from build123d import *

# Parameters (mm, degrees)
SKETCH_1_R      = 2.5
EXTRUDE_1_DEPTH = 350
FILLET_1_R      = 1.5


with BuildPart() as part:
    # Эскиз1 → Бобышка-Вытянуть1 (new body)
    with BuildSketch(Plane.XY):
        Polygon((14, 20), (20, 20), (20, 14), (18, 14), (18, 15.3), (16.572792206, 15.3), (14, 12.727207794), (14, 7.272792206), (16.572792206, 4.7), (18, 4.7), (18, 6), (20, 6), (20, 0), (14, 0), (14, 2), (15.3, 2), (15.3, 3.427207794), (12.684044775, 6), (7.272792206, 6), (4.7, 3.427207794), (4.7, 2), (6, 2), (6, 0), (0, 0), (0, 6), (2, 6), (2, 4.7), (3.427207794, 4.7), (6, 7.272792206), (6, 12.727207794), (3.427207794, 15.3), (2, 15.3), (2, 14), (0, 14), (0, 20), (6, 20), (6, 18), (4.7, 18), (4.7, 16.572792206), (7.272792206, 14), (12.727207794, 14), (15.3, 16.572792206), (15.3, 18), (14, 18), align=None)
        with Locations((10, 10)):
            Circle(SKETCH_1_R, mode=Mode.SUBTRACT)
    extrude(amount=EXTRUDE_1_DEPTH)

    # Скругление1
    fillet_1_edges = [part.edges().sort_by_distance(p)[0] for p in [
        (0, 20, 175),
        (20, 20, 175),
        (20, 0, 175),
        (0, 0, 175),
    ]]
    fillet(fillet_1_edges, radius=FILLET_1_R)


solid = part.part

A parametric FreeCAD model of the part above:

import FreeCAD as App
import Part
import Sketcher
Q = App.Units.Quantity


def edges_at(feature, points):
    """Names of the edges that pass closest to the given points."""
    edges = feature.Shape.Edges
    near = lambda p: min(range(len(edges)), key=lambda i: edges[i].distToShape(Part.Vertex(*p))[0])
    return sorted({f"Edge{near(p) + 1}" for p in points})


def add_polygon(sketch, points):
    """Adds a closed chain of lines whose ends are joined by coincident constraints."""
    first, n = sketch.GeometryCount, len(points)
    for a, b in zip(points, points[1:] + points[:1]):
        sketch.addGeometry(Part.LineSegment(App.Vector(*a, 0), App.Vector(*b, 0)), False)
    for i in range(n):
        sketch.addConstraint(Sketcher.Constraint("Coincident", first + i, 2, first + (i + 1) % n, 1))

doc = App.newDocument("Part")
body = doc.addObject("PartDesign::Body", "Body")

sketch1 = body.newObject("Sketcher::SketchObject", "Sketch")
sketch1.AttachmentSupport = (doc.getObject("XY_Plane"), [""])
sketch1.MapMode = "FlatFace"
add_polygon(sketch1, [(20, 20), (14, 20), (14, 18), (15.3, 18), (15.3, 16.572792), (12.727208, 14), (7.272792, 14), (4.7, 16.572792), (4.7, 18), (6, 18), (6, 20), (0, 20), (0, 14), (2, 14), (2, 15.3), (3.427208, 15.3), (6, 12.727208), (6, 7.272792), (3.427208, 4.7), (2, 4.7), (2, 6), (0, 6), (0, 0), (6, 0), (6, 2), (4.7, 2), (4.7, 3.427208), (7.272792, 6), (12.684045, 6), (15.3, 3.427208), (15.3, 2), (14, 2), (14, 0), (20, 0), (20, 6), (18, 6), (18, 4.7), (16.572792, 4.7), (14, 7.272792), (14, 12.727208), (16.572792, 15.3), (18, 15.3), (18, 14), (20, 14)])
sketch1.addGeometry(Part.Circle(App.Vector(10, 10, 0), App.Vector(0, 0, 1), 2.5), False)
sketch1.addConstraint([
    Sketcher.Constraint("Horizontal", 0),
    Sketcher.Constraint("Vertical", 1),
    Sketcher.Constraint("Horizontal", 2),
    Sketcher.Constraint("Vertical", 3),
    Sketcher.Constraint("Horizontal", 5),
    Sketcher.Constraint("Vertical", 7),
    Sketcher.Constraint("Horizontal", 8),
    Sketcher.Constraint("Vertical", 9),
    Sketcher.Constraint("Horizontal", 10),
    Sketcher.Constraint("Vertical", 11),
    Sketcher.Constraint("Horizontal", 12),
    Sketcher.Constraint("Vertical", 13),
    Sketcher.Constraint("Horizontal", 14),
    Sketcher.Constraint("Vertical", 16),
    Sketcher.Constraint("Horizontal", 18),
    Sketcher.Constraint("Vertical", 19),
    Sketcher.Constraint("Horizontal", 20),
    Sketcher.Constraint("Vertical", 21),
    Sketcher.Constraint("Horizontal", 22),
    Sketcher.Constraint("Vertical", 23),
    Sketcher.Constraint("Horizontal", 24),
    Sketcher.Constraint("Vertical", 25),
    Sketcher.Constraint("Horizontal", 27),
    Sketcher.Constraint("Vertical", 29),
    Sketcher.Constraint("Horizontal", 30),
    Sketcher.Constraint("Vertical", 31),
    Sketcher.Constraint("Horizontal", 32),
    Sketcher.Constraint("Vertical", 33),
    Sketcher.Constraint("Horizontal", 34),
    Sketcher.Constraint("Vertical", 35),
    Sketcher.Constraint("Horizontal", 36),
    Sketcher.Constraint("Vertical", 38),
    Sketcher.Constraint("Horizontal", 40),
    Sketcher.Constraint("Vertical", 41),
    Sketcher.Constraint("Horizontal", 42),
    Sketcher.Constraint("Vertical", 43),
    Sketcher.Constraint("Coincident", 21, 2, -1, 1),
    Sketcher.Constraint("PointOnObject", 10, 2, -2),
    Sketcher.Constraint("PointOnObject", 31, 2, -1),
    Sketcher.Constraint("Perpendicular", 4, 6),
    Sketcher.Constraint("Parallel", 6, 15),
    Sketcher.Constraint("Perpendicular", 15, 17),
    Sketcher.Constraint("Parallel", 17, 26),
    Sketcher.Constraint("Perpendicular", 26, 37),
    Sketcher.Constraint("Perpendicular", 37, 39),
    Sketcher.Constraint("Horizontal", 3, 2, 6, 2),
    Sketcher.Constraint("Horizontal", 2, 2, 7, 2),
    Sketcher.Constraint("Horizontal", 0, 2, 9, 2),
    Sketcher.Constraint("Horizontal", 5, 2, 11, 2),
    Sketcher.Constraint("Horizontal", 20, 2, 26, 2),
    Sketcher.Constraint("Horizontal", 25, 2, 28, 2),
    Sketcher.Constraint("Horizontal", 24, 2, 29, 2),
    Sketcher.Constraint("Horizontal", 27, 2, 33, 2),
    Sketcher.Constraint("Horizontal", 18, 2, 35, 2),
    Sketcher.Constraint("Horizontal", 16, 2, 37, 2),
    Sketcher.Constraint("Horizontal", 15, 2, 38, 2),
    Sketcher.Constraint("Horizontal", 14, 2, 39, 2),
    Sketcher.Constraint("Horizontal", 12, 2, 41, 2),
    Sketcher.Constraint("Vertical", 9, 2, 15, 2),
    Sketcher.Constraint("Vertical", 14, 2, 17, 2),
    Sketcher.Constraint("Vertical", 13, 2, 18, 2),
    Sketcher.Constraint("Vertical", 16, 2, 22, 2),
    Sketcher.Constraint("Vertical", 7, 2, 24, 2),
    Sketcher.Constraint("Vertical", 5, 2, 26, 2),
    Sketcher.Constraint("Vertical", 3, 2, 28, 2),
    Sketcher.Constraint("Vertical", 1, 2, 30, 2),
    Sketcher.Constraint("Vertical", 31, 2, 37, 2),
    Sketcher.Constraint("Vertical", 36, 2, 39, 2),
    Sketcher.Constraint("Vertical", 35, 2, 40, 2),
    Sketcher.Constraint("Vertical", 33, 2, 42, 2),
    Sketcher.Constraint("Equal", 2, 8),
    Sketcher.Constraint("Equal", 0, 10),
    Sketcher.Constraint("Equal", 20, 34),
    Sketcher.Constraint("Equal", 42, 1),
    Sketcher.Constraint("Equal", 40, 3),
    Sketcher.Constraint("Equal", 32, 11),
    Sketcher.Constraint("Equal", 30, 13),
    Sketcher.Constraint("Equal", 5, 16),
    Sketcher.Constraint("Equal", 13, 19),
    Sketcher.Constraint("Equal", 11, 21),
    Sketcher.Constraint("Equal", 9, 23),
    Sketcher.Constraint("Diameter", 44, Q("5 mm")),
    Sketcher.Constraint("DistanceX", 0, 2, 0, 1, Q("6 mm")),
    Sketcher.Constraint("DistanceX", 12, 1, 12, 2, Q("2 mm")),
    Sketcher.Constraint("DistanceX", 2, 1, 2, 2, Q("1.3 mm")),
    Sketcher.Constraint("DistanceX", -1, 1, 44, 3, Q("10 mm")),
    Sketcher.Constraint("DistanceY", -1, 1, 44, 3, Q("10 mm")),
    Sketcher.Constraint("DistanceX", -1, 1, 0, 2, Q("14 mm")),
    Sketcher.Constraint("DistanceX", 5, 2, 5, 1, Q("5.454416 mm")),
    Sketcher.Constraint("DistanceX", 27, 1, 27, 2, Q("5.411253 mm")),
])
pad1 = body.newObject("PartDesign::Pad", "Pad")
pad1.Profile = sketch1
pad1.Length = 350
doc.recompute()

fillet = body.newObject("PartDesign::Fillet", "Fillet")
fillet.Base = (pad1, edges_at(pad1, [
    (0, 20, 175),
    (20, 20, 175),
    (20, 0, 175),
    (0, 0, 175),
]))
fillet.Radius = 1.5

doc.recompute()
